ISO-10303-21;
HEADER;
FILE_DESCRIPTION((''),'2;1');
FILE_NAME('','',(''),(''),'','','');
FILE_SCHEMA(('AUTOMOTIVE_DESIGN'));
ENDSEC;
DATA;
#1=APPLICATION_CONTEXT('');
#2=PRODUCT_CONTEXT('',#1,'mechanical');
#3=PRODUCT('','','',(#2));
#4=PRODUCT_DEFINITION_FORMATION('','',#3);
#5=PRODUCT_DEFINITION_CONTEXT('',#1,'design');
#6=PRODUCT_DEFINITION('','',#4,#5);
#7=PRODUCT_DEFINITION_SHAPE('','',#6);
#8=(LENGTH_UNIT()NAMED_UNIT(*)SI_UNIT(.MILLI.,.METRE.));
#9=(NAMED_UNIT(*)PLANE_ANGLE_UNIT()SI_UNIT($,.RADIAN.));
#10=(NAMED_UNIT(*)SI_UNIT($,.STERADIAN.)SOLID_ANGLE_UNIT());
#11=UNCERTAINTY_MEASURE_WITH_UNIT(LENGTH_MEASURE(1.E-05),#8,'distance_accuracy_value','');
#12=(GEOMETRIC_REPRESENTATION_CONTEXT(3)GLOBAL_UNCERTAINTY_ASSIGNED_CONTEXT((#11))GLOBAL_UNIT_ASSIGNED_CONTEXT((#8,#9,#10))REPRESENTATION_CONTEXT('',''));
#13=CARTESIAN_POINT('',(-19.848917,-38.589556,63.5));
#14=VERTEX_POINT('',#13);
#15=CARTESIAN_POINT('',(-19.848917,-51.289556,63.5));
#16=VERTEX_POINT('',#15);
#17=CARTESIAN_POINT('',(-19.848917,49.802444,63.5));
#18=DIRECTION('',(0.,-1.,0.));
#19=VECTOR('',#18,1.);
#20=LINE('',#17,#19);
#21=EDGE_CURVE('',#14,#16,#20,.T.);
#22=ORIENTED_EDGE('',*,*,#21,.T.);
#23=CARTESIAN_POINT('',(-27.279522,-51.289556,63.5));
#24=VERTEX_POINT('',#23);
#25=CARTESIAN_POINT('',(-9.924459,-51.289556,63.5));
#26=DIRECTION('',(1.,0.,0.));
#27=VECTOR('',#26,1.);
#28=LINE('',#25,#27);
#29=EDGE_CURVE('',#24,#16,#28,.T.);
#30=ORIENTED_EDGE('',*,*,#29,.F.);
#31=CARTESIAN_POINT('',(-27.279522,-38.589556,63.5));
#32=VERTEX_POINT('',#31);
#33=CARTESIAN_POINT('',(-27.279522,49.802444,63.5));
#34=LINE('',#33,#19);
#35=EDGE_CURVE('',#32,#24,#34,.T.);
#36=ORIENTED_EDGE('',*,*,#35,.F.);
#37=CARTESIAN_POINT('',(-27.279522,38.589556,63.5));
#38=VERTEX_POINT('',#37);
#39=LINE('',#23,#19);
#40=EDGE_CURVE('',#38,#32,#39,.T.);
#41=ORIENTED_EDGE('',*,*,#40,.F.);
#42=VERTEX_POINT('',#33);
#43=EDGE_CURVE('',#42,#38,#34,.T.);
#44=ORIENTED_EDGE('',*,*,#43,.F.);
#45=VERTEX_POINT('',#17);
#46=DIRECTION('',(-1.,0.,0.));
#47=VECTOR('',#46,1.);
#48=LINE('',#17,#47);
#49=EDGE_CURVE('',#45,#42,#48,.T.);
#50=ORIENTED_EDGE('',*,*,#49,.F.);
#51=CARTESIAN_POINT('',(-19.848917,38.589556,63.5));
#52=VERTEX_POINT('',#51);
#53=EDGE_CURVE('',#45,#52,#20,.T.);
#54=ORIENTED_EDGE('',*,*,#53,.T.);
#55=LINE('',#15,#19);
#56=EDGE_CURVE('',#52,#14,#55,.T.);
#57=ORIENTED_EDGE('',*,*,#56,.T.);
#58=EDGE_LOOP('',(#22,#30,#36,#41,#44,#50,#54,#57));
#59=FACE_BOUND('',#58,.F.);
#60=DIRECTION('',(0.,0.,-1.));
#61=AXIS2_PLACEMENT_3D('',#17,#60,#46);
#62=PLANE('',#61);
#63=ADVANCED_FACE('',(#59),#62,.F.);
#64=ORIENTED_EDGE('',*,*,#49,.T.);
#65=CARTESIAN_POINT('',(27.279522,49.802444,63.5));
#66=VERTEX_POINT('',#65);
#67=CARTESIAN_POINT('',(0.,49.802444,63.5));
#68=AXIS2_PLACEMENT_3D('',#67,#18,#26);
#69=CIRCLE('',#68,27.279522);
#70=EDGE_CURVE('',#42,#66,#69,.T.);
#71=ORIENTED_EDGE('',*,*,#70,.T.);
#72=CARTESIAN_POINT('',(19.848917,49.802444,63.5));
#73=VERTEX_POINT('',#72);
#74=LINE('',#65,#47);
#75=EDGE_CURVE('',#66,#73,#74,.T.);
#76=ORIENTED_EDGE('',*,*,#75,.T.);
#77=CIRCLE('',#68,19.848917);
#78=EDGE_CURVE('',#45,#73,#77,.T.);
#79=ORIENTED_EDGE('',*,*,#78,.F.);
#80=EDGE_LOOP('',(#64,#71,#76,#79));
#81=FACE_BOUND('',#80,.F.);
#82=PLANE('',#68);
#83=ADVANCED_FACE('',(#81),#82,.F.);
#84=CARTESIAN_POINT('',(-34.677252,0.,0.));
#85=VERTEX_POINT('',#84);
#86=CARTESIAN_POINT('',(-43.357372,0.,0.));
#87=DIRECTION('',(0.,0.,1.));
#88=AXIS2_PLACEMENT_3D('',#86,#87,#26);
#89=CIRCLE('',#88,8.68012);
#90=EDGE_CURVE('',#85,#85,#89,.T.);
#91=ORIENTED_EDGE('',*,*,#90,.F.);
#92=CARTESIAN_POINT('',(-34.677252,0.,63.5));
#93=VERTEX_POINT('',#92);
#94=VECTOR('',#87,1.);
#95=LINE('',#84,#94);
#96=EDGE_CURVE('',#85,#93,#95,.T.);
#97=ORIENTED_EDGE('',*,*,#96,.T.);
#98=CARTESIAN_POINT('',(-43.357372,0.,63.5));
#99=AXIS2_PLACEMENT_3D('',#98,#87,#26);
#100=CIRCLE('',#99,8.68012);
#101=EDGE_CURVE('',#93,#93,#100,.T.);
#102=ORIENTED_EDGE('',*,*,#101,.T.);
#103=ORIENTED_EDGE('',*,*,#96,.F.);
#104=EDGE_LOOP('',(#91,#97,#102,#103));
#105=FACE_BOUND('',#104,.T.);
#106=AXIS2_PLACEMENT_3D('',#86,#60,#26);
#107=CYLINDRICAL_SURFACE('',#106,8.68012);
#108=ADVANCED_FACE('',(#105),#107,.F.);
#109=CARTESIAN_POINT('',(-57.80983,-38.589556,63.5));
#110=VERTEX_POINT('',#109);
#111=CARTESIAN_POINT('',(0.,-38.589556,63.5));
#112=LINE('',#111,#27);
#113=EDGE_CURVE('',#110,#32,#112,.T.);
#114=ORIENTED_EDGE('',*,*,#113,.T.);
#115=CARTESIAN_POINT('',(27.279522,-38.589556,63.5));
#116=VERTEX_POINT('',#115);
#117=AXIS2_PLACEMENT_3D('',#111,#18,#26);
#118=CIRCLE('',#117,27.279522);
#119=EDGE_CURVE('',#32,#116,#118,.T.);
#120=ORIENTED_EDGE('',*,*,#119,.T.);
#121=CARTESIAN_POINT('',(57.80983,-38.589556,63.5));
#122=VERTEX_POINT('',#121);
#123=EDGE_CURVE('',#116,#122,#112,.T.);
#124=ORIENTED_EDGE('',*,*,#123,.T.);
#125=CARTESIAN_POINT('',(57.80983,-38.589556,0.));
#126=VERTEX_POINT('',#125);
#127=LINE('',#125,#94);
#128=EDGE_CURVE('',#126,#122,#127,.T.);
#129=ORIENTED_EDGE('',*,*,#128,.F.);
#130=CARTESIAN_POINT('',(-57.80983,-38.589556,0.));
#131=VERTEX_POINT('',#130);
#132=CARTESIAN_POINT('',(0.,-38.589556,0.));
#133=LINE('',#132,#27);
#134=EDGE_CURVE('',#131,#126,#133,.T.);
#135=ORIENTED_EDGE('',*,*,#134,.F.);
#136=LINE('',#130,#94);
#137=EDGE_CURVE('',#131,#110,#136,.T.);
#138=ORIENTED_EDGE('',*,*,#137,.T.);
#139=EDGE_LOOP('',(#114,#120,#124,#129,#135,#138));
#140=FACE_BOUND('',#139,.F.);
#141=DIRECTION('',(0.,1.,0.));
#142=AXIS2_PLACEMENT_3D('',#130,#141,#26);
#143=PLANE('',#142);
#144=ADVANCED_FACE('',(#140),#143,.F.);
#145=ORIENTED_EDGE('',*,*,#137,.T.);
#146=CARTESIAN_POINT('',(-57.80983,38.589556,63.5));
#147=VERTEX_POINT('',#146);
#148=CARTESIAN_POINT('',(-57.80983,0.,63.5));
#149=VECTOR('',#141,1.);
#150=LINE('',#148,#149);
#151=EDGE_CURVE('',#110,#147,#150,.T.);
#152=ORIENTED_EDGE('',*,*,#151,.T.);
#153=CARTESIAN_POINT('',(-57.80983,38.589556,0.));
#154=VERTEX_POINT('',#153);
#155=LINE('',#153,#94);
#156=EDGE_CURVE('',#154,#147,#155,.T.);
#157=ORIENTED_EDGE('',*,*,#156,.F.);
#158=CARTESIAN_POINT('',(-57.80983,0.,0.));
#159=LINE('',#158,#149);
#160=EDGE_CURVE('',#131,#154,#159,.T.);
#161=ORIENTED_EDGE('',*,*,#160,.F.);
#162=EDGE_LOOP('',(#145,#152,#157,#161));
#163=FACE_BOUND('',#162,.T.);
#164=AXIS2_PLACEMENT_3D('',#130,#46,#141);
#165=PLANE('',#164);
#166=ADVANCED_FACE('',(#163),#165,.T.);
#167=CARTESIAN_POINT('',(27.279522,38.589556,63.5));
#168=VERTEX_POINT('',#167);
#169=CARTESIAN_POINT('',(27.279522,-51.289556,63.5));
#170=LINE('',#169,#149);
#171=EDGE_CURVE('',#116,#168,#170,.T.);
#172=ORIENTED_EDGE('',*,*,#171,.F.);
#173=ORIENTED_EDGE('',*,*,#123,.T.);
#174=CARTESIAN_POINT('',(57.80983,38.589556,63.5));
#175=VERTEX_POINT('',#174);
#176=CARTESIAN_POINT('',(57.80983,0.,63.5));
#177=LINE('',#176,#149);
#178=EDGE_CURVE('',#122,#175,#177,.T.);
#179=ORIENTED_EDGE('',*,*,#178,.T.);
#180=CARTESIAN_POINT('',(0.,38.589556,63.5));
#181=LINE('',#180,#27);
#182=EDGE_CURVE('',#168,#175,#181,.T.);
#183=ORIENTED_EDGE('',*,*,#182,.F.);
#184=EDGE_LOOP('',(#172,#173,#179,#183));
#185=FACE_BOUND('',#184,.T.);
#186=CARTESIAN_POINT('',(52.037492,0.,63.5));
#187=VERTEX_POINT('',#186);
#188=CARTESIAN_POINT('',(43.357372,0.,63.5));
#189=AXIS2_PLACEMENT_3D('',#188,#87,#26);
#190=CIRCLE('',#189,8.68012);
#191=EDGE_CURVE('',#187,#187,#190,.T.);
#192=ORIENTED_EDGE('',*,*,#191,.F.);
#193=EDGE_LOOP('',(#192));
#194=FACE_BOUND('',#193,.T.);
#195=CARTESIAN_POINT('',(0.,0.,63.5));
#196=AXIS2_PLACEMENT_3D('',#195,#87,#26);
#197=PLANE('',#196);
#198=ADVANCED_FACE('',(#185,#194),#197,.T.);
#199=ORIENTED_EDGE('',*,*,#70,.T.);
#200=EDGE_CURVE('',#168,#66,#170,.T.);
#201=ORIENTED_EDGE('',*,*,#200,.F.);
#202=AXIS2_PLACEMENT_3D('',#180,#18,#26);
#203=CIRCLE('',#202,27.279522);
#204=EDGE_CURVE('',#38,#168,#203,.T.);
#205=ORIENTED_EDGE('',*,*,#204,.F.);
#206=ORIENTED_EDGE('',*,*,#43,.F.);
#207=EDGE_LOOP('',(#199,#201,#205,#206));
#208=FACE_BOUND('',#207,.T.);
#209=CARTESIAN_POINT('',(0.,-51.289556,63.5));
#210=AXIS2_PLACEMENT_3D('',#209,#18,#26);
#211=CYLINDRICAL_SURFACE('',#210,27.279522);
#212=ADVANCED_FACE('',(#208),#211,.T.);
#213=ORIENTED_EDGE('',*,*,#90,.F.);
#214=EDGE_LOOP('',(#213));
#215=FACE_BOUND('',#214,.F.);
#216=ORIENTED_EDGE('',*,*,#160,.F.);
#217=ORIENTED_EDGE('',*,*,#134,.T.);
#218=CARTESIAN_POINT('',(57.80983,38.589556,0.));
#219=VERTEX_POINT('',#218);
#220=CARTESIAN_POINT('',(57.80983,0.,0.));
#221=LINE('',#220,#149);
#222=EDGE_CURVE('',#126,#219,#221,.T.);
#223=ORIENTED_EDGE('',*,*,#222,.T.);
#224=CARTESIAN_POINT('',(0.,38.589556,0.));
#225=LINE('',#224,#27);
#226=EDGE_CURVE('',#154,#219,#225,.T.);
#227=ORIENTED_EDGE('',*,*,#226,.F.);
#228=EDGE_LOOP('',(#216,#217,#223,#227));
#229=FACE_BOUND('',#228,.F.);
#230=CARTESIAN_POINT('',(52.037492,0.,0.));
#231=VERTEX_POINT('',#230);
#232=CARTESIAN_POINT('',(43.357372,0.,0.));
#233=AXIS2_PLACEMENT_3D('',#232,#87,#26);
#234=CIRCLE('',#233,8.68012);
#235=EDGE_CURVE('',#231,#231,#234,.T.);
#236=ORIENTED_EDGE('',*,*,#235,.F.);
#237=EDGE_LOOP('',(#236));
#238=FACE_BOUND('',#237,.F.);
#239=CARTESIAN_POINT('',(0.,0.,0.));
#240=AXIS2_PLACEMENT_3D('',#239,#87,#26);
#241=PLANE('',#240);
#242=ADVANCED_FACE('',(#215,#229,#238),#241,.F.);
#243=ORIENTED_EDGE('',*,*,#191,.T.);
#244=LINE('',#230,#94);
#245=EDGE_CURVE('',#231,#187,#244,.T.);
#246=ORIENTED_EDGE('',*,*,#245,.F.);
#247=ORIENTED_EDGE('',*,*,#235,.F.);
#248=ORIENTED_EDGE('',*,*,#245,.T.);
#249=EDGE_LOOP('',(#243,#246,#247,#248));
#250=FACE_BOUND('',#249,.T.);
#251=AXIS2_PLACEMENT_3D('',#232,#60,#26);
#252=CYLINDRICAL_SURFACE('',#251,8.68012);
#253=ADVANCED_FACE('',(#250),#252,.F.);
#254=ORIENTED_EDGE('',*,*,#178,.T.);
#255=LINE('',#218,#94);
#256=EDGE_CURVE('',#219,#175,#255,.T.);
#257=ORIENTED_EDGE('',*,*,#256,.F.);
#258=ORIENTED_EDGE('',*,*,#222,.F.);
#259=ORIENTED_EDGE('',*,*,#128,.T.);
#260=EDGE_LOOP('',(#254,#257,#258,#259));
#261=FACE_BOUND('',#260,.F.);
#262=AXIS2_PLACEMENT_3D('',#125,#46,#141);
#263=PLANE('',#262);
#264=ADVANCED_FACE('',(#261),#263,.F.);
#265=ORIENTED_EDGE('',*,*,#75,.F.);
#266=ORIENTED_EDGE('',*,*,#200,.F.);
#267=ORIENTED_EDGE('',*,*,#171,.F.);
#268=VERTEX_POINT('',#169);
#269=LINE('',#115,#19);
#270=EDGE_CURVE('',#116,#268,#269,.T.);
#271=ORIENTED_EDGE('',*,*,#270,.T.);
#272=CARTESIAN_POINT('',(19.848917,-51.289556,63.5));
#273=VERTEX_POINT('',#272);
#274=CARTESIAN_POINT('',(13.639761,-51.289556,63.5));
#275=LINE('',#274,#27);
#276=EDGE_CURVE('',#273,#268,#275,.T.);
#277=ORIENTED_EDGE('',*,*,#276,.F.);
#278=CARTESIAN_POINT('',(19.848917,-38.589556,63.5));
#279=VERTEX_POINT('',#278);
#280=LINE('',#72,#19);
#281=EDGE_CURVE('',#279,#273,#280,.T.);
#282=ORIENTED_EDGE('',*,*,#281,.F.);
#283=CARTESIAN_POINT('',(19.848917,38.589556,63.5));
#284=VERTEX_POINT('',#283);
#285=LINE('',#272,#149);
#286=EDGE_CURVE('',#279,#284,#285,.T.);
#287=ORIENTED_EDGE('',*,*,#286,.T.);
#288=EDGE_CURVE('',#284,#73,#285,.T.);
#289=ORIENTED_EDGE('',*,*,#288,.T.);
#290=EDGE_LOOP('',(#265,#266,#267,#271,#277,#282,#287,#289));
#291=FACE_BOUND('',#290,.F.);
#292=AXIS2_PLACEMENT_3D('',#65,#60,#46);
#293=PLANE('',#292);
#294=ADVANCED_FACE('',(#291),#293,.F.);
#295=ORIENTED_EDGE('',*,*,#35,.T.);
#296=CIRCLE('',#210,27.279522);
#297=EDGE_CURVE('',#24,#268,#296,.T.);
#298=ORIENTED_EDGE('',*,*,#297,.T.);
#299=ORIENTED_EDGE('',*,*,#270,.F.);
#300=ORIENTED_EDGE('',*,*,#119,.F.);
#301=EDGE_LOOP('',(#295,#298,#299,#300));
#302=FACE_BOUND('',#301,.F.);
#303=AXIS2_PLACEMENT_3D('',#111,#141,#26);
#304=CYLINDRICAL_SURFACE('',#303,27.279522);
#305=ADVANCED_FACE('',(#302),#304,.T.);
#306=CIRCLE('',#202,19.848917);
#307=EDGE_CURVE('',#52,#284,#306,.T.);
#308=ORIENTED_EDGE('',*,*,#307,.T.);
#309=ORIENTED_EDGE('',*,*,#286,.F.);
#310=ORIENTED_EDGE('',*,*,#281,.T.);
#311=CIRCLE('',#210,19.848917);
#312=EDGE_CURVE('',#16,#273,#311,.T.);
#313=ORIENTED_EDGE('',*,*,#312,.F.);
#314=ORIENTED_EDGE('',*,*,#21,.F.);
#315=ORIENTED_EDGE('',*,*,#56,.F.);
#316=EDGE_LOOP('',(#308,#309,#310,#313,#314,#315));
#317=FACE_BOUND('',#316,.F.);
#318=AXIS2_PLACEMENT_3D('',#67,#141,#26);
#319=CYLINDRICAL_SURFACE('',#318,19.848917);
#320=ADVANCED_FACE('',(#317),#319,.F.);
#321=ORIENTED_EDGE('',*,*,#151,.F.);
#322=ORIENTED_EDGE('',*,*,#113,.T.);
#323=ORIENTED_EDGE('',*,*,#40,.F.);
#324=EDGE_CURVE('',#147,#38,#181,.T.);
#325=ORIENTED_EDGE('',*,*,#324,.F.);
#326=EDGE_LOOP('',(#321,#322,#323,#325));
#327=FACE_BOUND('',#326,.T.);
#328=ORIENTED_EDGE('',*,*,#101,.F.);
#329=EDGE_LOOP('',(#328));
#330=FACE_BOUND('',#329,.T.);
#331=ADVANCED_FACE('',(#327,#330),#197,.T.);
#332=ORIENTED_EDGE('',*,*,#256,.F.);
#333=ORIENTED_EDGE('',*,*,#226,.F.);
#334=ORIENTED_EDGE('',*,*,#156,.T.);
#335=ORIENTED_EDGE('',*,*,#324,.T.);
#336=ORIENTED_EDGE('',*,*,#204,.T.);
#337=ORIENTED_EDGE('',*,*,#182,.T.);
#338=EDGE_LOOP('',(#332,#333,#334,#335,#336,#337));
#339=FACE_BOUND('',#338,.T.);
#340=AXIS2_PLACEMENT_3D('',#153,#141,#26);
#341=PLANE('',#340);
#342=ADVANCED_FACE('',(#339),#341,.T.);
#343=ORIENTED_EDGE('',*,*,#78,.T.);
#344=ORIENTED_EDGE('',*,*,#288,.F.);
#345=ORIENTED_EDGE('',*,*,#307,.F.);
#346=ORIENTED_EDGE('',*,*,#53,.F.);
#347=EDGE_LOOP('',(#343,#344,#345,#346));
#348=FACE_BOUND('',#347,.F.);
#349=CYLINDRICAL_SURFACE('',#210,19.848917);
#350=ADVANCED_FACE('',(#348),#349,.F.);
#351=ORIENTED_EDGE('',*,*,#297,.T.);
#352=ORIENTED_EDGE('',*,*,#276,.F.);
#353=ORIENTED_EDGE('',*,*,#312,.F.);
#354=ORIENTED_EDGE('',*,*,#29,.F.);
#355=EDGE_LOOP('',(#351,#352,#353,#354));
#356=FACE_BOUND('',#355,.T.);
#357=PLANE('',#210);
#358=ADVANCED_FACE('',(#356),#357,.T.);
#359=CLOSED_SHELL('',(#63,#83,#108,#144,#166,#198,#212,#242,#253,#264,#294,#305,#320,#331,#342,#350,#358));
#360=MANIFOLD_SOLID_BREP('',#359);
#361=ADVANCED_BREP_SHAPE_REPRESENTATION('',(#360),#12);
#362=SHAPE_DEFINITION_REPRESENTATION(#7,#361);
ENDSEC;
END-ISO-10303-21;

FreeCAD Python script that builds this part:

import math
import FreeCAD as App
import Part
import Sketcher
from FreeCAD import Vector
Q = App.Units.Quantity


def add_polygon(sketch, points):
    """Adds a closed chain of lines whose ends are joined by coincident constraints."""
    first, n = sketch.GeometryCount, len(points)
    for a, b in zip(points, points[1:] + points[:1]):
        sketch.addGeometry(Part.LineSegment(App.Vector(*a, 0), App.Vector(*b, 0)), False)
    for i in range(n):
        sketch.addConstraint(Sketcher.Constraint("Coincident", first + i, 2, first + (i + 1) % n, 1))

doc = App.newDocument("Part")
body = doc.addObject("PartDesign::Body", "Body")

sketch1 = body.newObject("Sketcher::SketchObject", "Sketch")
sketch1.AttachmentSupport = (doc.getObject("XY_Plane"), [""])
sketch1.MapMode = "FlatFace"
add_polygon(sketch1, [(-58, 39), (-58, -39), (58, -39), (58, 39)])
sketch1.addGeometry(Part.Circle(Vector(-43, 0, 0), Vector(0, 0, 1), 9), False)
sketch1.addGeometry(Part.Circle(Vector(43, 0, 0), Vector(0, 0, 1), 9), False)
sketch1.addConstraint(Sketcher.Constraint("Vertical", 0))
sketch1.addConstraint(Sketcher.Constraint("Horizontal", 1))
sketch1.addConstraint(Sketcher.Constraint("Vertical", 2))
sketch1.addConstraint(Sketcher.Constraint("Horizontal", 3))
sketch1.addConstraint(Sketcher.Constraint("Equal", 4, 5))
sketch1.addConstraint(Sketcher.Constraint("Symmetric", 4, 3, 5, 3, -1, 1))
sketch1.addConstraint(Sketcher.Constraint("Symmetric", 0, 2, 2, 2, -1, 1))
sketch1.addConstraint(Sketcher.Constraint("PointOnObject", 4, 3, -1))
sketch1.addConstraint(Sketcher.Constraint("Diameter", 4, Q("17.36024 mm")))
sketch1.addConstraint(Sketcher.Constraint("DistanceX", 1, 1, 1, 2, Q("115.61966 mm")))
sketch1.addConstraint(Sketcher.Constraint("DistanceY", 0, 2, 0, 1, Q("77.179112 mm")))
sketch1.addConstraint(Sketcher.Constraint("DistanceX", 4, 3, -1, 1, Q("43.357372 mm")))
pad1 = body.newObject("PartDesign::Pad", "Pad")
pad1.Profile = sketch1
pad1.Length = Q("2.5 in")

sketch2 = body.newObject("Sketcher::SketchObject", "Sketch001")
sketch2.AttachmentSupport = (doc.getObject("XZ_Plane"), [""])
sketch2.MapMode = "FlatFace"
sketch2.AttachmentOffset = App.Placement(Vector(0, 0, 38.589556), App.Rotation())
sketch2.addGeometry(Part.Circle(Vector(0, 64, 0), Vector(0, 0, 1), 27), False)
sketch2.addConstraint(Sketcher.Constraint("PointOnObject", 0, 3, -2))
sketch2.addConstraint(Sketcher.Constraint("DistanceY", -1, 1, 0, 3, Q("2.5 in")))
sketch2.addConstraint(Sketcher.Constraint("Diameter", 0, Q("54.559044 mm")))
pad2 = body.newObject("PartDesign::Pad", "Pad001")
pad2.Profile = sketch2
pad2.Length = Q("0.5 in")

sketch3 = body.newObject("Sketcher::SketchObject", "Sketch002")
sketch3.AttachmentSupport = (doc.getObject("XZ_Plane"), [""])
sketch3.MapMode = "FlatFace"
sketch3.AttachmentOffset = App.Placement(Vector(0, 0, 51.289556), App.Rotation())
sketch3.addGeometry(Part.Circle(Vector(0, 64, 0), Vector(0, 0, 1), 27), False)
sketch3.addGeometry(Part.Circle(Vector(0, 64, 0), Vector(0, 0, 1), 20), False)
sketch3.addConstraint(Sketcher.Constraint("Coincident", 1, 3, 0, 3))
sketch3.addConstraint(Sketcher.Constraint("PointOnObject", 0, 3, -2))
sketch3.addConstraint(Sketcher.Constraint("DistanceY", -1, 1, 0, 3, Q("2.5 in")))
sketch3.addConstraint(Sketcher.Constraint("Diameter", 0, Q("54.559044 mm")))
sketch3.addConstraint(Sketcher.Constraint("Diameter", 1, Q("39.697834 mm")))
pad3 = body.newObject("PartDesign::Pad", "Pad002")
pad3.Profile = sketch3
pad3.Length = Q("3.98 in")
pad3.Reversed = True

sketch4 = body.newObject("Sketcher::SketchObject", "Sketch003")
sketch4.AttachmentSupport = (doc.getObject("XZ_Plane"), [""])
sketch4.MapMode = "FlatFace"
sketch4.AttachmentOffset = App.Placement(Vector(0, 0, -49.802444), App.Rotation())
sketch4.addGeometry(Part.LineSegment(Vector(-20, 64, 0), Vector(-27, 64, 0)), False)
sketch4.addGeometry(Part.LineSegment(Vector(-27, 64, 0), Vector(-27, 95, 0)), False)
sketch4.addGeometry(Part.LineSegment(Vector(-27, 95, 0), Vector(27, 95, 0)), False)
sketch4.addGeometry(Part.LineSegment(Vector(27, 95, 0), Vector(27, 64, 0)), False)
sketch4.addGeometry(Part.LineSegment(Vector(27, 64, 0), Vector(20, 64, 0)), False)
sketch4.addGeometry(Part.ArcOfCircle(Part.Circle(Vector(0, 64, 0), Vector(0, 0, 1), 20), math.radians(180), math.radians(360)), False)
sketch4.addConstraint(Sketcher.Constraint("Coincident", 0, 2, 1, 1))
sketch4.addConstraint(Sketcher.Constraint("Coincident", 1, 2, 2, 1))
sketch4.addConstraint(Sketcher.Constraint("Coincident", 2, 2, 3, 1))
sketch4.addConstraint(Sketcher.Constraint("Coincident", 3, 2, 4, 1))
sketch4.addConstraint(Sketcher.Constraint("Coincident", 4, 2, 5, 2))
sketch4.addConstraint(Sketcher.Constraint("Coincident", 5, 1, 0, 1))
sketch4.addConstraint(Sketcher.Constraint("Horizontal", 0))
sketch4.addConstraint(Sketcher.Constraint("Vertical", 1))
sketch4.addConstraint(Sketcher.Constraint("Horizontal", 2))
sketch4.addConstraint(Sketcher.Constraint("Vertical", 3))
sketch4.addConstraint(Sketcher.Constraint("Horizontal", 4))
sketch4.addConstraint(Sketcher.Constraint("Symmetric", 0, 2, 3, 2, -2))
sketch4.addConstraint(Sketcher.Constraint("PointOnObject", 5, 3, -2))
sketch4.addConstraint(Sketcher.Constraint("Horizontal", 5, 3, 0, 2))
sketch4.addConstraint(Sketcher.Constraint("DistanceY", -1, 1, 5, 3, Q("2.5 in")))
sketch4.addConstraint(Sketcher.Constraint("Radius", 5, Q("19.848917 mm")))
sketch4.addConstraint(Sketcher.Constraint("DistanceX", 0, 2, 0, 1, Q("7.430605 mm")))
sketch4.addConstraint(Sketcher.Constraint("DistanceY", 1, 1, 1, 2, Q("31.363847 mm")))
pocket1 = body.newObject("PartDesign::Pocket", "Pocket")
pocket1.Profile = sketch4
pocket1.Length = Q("7.67 in")
pocket1.Reversed = True

doc.recompute()
